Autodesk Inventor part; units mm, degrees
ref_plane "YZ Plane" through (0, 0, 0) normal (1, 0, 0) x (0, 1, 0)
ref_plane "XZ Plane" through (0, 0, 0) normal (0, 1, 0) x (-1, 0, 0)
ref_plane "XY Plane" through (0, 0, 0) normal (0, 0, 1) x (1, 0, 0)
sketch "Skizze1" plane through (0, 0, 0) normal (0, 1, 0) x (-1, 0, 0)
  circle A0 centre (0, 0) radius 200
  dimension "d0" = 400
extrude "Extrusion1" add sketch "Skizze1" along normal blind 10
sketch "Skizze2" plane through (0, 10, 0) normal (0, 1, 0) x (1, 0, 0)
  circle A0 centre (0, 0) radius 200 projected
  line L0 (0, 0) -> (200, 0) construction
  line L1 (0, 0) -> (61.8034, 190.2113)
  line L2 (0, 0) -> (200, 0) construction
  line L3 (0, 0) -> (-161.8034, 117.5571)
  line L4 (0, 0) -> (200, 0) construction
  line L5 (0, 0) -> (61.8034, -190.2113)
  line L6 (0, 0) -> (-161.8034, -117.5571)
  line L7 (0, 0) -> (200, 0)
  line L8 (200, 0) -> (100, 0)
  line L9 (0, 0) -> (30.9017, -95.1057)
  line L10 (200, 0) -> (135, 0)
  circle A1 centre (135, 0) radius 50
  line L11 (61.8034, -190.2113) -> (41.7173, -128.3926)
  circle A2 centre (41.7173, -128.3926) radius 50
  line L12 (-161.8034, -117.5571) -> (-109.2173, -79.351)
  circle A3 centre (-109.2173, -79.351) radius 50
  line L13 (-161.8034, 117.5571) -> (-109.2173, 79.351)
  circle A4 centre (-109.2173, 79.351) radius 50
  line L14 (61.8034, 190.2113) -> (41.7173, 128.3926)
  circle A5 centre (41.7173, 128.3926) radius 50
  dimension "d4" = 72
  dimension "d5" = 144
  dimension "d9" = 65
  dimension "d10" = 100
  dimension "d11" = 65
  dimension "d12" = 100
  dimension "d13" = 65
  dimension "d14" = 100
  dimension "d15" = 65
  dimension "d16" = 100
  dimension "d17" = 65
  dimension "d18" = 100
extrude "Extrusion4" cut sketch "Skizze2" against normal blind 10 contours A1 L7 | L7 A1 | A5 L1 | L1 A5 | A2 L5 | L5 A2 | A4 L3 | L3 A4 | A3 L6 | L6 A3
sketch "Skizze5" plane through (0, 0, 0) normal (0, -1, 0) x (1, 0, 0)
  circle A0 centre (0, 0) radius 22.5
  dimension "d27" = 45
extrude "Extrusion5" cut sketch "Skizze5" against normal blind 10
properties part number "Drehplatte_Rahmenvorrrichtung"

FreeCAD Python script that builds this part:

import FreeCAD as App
import Part
import Sketcher

V = App.Vector
Q = App.Units.Quantity

doc = App.newDocument("Part")
body = doc.addObject("PartDesign::Body", "Body")

# Sketch on XZ plane
sketch1 = doc.addObject("Sketcher::SketchObject", "Sketch")
body.addObject(sketch1)
sketch1.AttachmentSupport = (doc.XZ_Plane, [""])
sketch1.MapMode = "FlatFace"
sketch1.addGeometry(Part.Circle(V(0, 0, 0), V(0, 0, 1), 200), False)
sketch1.addConstraint([
    Sketcher.Constraint("Coincident", 0, 3, -1, 1),
    Sketcher.Constraint("Diameter", 0, Q("400 mm")),
])
pad1 = doc.addObject("PartDesign::Pad", "Pad")
body.addObject(pad1)
pad1.Profile = sketch1
pad1.Length = 10
pad1.Reversed = True

# Sketch on XZ plane
sketch2 = doc.addObject("Sketcher::SketchObject", "Sketch001")
body.addObject(sketch2)
sketch2.AttachmentSupport = (doc.XZ_Plane, [""])
sketch2.MapMode = "FlatFace"
sketch2.AttachmentOffset = App.Placement(V(0, 0, -10), App.Rotation())
sketch2.addGeometry([
    Part.Circle(V(135, 0, 0), V(0, 0, 1), 50),  # 0
    Part.Circle(V(42, -128, 0), V(0, 0, 1), 50),  # 1
    Part.Circle(V(42, 128, 0), V(0, 0, 1), 50),  # 2
    Part.Circle(V(-109, -79, 0), V(0, 0, 1), 50),  # 3
    Part.Circle(V(-109, 79, 0), V(0, 0, 1), 50),  # 4
], False)
sketch2.addConstraint([
    Sketcher.Constraint("Equal", 0, 1),
    Sketcher.Constraint("Equal", 1, 2),
    Sketcher.Constraint("Equal", 2, 3),
    Sketcher.Constraint("Equal", 3, 4),
    Sketcher.Constraint("Symmetric", 1, 3, 2, 3, -1),
    Sketcher.Constraint("Symmetric", 3, 3, 4, 3, -1),
    Sketcher.Constraint("PointOnObject", 0, 3, -1),
    Sketcher.Constraint("Diameter", 0, Q("100 mm")),
    Sketcher.Constraint("DistanceX", -1, 1, 0, 3, Q("135 mm")),
    Sketcher.Constraint("DistanceY", 3, 3, -1, 1, Q("79.351 mm")),
    Sketcher.Constraint("DistanceX", -1, 1, 1, 3, Q("41.7173 mm")),
    Sketcher.Constraint("DistanceY", 1, 3, -1, 1, Q("128.3926 mm")),
    Sketcher.Constraint("DistanceX", 3, 3, -1, 1, Q("109.2173 mm")),
])
pocket1 = doc.addObject("PartDesign::Pocket", "Pocket")
body.addObject(pocket1)
pocket1.Profile = sketch2
pocket1.Length = 10
pocket1.Reversed = True

# Sketch on XZ plane
sketch3 = doc.addObject("Sketcher::SketchObject", "Sketch002")
body.addObject(sketch3)
sketch3.AttachmentSupport = (doc.XZ_Plane, [""])
sketch3.MapMode = "FlatFace"
sketch3.addGeometry(Part.Circle(V(0, 0, 0), V(0, 0, 1), 22), False)
sketch3.addConstraint([
    Sketcher.Constraint("Coincident", 0, 3, -1, 1),
    Sketcher.Constraint("Diameter", 0, Q("45 mm")),
])
pocket2 = doc.addObject("PartDesign::Pocket", "Pocket001")
body.addObject(pocket2)
pocket2.Profile = sketch3
pocket2.Length = 10

doc.recompute()
